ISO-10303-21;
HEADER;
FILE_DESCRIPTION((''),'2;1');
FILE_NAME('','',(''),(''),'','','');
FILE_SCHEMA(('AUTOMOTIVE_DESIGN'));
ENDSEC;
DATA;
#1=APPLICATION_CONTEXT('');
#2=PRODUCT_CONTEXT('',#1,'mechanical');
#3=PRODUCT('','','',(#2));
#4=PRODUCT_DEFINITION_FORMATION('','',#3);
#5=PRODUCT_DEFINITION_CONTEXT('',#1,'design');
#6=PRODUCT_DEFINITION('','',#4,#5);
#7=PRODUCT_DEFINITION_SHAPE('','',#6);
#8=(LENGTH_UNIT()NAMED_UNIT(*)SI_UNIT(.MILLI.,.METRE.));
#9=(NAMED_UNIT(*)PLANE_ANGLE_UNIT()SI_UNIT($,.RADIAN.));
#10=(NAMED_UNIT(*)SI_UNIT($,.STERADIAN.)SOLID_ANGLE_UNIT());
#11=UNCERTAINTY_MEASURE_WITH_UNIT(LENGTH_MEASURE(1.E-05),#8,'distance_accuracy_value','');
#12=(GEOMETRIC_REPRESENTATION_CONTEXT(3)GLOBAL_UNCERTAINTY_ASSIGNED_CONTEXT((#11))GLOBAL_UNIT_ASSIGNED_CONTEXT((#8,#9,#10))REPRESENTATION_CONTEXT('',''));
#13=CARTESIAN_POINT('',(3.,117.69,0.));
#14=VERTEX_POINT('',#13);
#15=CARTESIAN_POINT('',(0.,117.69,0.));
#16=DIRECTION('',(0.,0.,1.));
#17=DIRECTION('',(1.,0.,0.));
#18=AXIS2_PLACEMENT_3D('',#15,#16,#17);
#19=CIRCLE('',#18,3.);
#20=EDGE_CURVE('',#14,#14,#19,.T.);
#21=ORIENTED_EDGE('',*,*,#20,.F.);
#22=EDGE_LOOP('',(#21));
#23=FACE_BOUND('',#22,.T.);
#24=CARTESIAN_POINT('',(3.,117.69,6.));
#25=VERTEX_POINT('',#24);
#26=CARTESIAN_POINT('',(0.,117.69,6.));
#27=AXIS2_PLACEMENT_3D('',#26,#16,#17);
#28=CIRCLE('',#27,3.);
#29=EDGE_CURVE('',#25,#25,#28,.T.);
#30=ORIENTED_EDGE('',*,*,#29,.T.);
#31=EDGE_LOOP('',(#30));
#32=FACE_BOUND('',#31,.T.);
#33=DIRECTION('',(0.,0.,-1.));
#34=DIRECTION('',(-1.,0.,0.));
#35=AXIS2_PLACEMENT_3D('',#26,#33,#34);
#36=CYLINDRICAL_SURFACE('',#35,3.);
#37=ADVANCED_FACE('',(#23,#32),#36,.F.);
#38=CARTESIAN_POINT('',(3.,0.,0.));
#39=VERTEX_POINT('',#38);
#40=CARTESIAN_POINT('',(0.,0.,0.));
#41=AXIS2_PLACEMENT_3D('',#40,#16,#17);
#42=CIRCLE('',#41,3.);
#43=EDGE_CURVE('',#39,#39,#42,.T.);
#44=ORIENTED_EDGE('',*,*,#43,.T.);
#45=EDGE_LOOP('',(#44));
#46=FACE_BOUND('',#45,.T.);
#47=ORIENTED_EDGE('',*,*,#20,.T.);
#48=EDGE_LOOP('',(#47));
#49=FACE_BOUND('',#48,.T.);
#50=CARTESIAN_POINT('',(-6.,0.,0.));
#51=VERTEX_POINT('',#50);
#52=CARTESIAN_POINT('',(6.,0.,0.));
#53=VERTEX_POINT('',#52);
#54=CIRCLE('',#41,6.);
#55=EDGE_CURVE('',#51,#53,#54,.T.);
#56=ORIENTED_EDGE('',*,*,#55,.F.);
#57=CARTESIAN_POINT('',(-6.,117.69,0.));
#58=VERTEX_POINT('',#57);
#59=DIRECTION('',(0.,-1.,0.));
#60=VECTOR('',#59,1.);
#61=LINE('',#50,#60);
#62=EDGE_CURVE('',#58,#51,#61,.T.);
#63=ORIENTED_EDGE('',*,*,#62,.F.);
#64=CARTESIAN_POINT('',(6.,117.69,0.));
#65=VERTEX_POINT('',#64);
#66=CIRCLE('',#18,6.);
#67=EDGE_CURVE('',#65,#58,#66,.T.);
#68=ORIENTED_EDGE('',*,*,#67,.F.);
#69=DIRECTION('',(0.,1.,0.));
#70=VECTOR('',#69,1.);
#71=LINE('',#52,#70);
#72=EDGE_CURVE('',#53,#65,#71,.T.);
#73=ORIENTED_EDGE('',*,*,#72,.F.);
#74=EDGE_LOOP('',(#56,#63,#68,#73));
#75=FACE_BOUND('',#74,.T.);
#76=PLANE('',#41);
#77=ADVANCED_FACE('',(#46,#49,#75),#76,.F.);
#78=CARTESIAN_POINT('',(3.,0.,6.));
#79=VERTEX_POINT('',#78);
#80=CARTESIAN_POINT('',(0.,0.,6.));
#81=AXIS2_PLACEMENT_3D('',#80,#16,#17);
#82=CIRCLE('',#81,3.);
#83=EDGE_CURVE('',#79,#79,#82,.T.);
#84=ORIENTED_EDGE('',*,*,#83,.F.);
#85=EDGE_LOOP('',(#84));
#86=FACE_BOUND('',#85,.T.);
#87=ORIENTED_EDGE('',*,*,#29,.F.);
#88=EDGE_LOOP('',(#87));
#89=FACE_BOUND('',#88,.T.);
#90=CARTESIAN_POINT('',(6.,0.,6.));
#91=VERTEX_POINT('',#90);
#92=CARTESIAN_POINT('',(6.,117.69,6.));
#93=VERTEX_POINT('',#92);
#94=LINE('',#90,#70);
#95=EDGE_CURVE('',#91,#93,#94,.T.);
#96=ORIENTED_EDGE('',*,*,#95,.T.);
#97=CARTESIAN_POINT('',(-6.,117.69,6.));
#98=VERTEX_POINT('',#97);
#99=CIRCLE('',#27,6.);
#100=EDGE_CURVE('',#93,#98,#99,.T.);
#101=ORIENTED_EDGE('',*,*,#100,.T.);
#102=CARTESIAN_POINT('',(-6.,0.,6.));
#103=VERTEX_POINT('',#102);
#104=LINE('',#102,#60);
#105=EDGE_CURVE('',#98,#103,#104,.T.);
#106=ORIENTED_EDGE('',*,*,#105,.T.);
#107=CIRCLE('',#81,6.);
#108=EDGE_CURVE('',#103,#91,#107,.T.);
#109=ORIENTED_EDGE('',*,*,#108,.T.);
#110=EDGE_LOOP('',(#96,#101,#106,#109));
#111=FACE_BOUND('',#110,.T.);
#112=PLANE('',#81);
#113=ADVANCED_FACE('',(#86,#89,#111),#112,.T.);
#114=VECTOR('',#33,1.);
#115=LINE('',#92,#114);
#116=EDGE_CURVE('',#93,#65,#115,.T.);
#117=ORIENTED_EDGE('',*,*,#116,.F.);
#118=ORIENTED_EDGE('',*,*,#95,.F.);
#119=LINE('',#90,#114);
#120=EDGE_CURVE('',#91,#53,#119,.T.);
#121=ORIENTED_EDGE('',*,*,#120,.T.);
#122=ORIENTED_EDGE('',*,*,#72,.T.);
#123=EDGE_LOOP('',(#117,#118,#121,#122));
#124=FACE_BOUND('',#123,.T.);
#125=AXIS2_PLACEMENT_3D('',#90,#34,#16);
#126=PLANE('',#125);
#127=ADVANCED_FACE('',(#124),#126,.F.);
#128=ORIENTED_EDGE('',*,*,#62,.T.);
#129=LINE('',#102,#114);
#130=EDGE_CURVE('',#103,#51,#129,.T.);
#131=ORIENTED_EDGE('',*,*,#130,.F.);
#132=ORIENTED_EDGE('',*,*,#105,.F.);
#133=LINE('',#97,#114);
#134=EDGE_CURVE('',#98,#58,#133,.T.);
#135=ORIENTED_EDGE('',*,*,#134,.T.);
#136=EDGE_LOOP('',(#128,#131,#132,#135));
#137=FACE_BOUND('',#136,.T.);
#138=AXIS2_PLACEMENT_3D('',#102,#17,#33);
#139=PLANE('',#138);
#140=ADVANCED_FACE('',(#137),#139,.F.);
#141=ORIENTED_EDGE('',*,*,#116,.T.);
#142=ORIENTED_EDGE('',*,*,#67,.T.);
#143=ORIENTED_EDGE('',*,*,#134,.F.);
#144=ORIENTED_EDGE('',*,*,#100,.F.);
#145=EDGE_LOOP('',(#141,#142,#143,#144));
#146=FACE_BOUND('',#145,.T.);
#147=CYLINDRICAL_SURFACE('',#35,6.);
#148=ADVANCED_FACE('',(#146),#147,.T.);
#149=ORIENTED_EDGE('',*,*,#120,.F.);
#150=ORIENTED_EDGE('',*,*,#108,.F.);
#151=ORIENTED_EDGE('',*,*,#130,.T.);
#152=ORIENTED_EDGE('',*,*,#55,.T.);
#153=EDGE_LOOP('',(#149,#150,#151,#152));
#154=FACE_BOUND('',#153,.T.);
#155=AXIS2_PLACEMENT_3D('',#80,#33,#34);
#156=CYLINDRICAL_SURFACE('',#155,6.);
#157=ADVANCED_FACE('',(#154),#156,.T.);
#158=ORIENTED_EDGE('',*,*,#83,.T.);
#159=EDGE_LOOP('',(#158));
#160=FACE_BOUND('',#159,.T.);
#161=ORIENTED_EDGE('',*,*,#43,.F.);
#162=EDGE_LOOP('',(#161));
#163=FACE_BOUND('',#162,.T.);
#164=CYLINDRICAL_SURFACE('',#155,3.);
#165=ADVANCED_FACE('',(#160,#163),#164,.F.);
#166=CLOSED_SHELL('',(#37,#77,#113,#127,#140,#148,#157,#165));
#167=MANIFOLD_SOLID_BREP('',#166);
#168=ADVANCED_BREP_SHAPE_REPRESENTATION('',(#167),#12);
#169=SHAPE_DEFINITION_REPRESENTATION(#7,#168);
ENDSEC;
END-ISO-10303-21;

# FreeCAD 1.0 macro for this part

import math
import FreeCAD as App
import Part
import Sketcher

doc = App.newDocument("Part")
body = doc.addObject("PartDesign::Body", "Body")

# Sketch on XY plane
sketch1 = doc.addObject("Sketcher::SketchObject", "Sketch")
body.addObject(sketch1)
sketch1.AttachmentSupport = (doc.XY_Plane, [""])
sketch1.MapMode = "FlatFace"
sketch1.addGeometry([
    Part.LineSegment(App.Vector(-6, 117.7, 0), App.Vector(-6, 0, 0)),  # 0
    Part.ArcOfCircle(Part.Circle(App.Vector(0, 0, 0), App.Vector(0, 0, 1), 6), math.radians(180), math.radians(360)),  # 1
    Part.LineSegment(App.Vector(6, 0, 0), App.Vector(6, 117.7, 0)),  # 2
    Part.ArcOfCircle(Part.Circle(App.Vector(0, 117.7, 0), App.Vector(0, 0, 1), 6), math.radians(0), math.radians(180)),  # 3
    Part.Circle(App.Vector(0, 0, 0), App.Vector(0, 0, 1), 3),  # 4
    Part.Circle(App.Vector(0, 117.7, 0), App.Vector(0, 0, 1), 3),  # 5
], False)
sketch1.addConstraint([
    Sketcher.Constraint("Tangent", 0, 2, 1, 1),
    Sketcher.Constraint("Tangent", 1, 2, 2, 1),
    Sketcher.Constraint("Tangent", 2, 2, 3, 1),
    Sketcher.Constraint("Tangent", 3, 2, 0, 1),
    Sketcher.Constraint("Vertical", 0),
    Sketcher.Constraint("Vertical", 2),
    Sketcher.Constraint("Coincident", 1, 3, -1, 1),
    Sketcher.Constraint("Coincident", 4, 3, -1, 1),
    Sketcher.Constraint("Coincident", 5, 3, 3, 3),
    Sketcher.Constraint("Equal", 4, 5),
    Sketcher.Constraint("Diameter", 4, 6.0),
    Sketcher.Constraint("Radius", 1, 6.0),
    Sketcher.Constraint("DistanceY", 0, 2, 0, 1, 117.69),
])
pad1 = doc.addObject("PartDesign::Pad", "Pad")
body.addObject(pad1)
pad1.Profile = sketch1
pad1.Length = 6

doc.recompute()
